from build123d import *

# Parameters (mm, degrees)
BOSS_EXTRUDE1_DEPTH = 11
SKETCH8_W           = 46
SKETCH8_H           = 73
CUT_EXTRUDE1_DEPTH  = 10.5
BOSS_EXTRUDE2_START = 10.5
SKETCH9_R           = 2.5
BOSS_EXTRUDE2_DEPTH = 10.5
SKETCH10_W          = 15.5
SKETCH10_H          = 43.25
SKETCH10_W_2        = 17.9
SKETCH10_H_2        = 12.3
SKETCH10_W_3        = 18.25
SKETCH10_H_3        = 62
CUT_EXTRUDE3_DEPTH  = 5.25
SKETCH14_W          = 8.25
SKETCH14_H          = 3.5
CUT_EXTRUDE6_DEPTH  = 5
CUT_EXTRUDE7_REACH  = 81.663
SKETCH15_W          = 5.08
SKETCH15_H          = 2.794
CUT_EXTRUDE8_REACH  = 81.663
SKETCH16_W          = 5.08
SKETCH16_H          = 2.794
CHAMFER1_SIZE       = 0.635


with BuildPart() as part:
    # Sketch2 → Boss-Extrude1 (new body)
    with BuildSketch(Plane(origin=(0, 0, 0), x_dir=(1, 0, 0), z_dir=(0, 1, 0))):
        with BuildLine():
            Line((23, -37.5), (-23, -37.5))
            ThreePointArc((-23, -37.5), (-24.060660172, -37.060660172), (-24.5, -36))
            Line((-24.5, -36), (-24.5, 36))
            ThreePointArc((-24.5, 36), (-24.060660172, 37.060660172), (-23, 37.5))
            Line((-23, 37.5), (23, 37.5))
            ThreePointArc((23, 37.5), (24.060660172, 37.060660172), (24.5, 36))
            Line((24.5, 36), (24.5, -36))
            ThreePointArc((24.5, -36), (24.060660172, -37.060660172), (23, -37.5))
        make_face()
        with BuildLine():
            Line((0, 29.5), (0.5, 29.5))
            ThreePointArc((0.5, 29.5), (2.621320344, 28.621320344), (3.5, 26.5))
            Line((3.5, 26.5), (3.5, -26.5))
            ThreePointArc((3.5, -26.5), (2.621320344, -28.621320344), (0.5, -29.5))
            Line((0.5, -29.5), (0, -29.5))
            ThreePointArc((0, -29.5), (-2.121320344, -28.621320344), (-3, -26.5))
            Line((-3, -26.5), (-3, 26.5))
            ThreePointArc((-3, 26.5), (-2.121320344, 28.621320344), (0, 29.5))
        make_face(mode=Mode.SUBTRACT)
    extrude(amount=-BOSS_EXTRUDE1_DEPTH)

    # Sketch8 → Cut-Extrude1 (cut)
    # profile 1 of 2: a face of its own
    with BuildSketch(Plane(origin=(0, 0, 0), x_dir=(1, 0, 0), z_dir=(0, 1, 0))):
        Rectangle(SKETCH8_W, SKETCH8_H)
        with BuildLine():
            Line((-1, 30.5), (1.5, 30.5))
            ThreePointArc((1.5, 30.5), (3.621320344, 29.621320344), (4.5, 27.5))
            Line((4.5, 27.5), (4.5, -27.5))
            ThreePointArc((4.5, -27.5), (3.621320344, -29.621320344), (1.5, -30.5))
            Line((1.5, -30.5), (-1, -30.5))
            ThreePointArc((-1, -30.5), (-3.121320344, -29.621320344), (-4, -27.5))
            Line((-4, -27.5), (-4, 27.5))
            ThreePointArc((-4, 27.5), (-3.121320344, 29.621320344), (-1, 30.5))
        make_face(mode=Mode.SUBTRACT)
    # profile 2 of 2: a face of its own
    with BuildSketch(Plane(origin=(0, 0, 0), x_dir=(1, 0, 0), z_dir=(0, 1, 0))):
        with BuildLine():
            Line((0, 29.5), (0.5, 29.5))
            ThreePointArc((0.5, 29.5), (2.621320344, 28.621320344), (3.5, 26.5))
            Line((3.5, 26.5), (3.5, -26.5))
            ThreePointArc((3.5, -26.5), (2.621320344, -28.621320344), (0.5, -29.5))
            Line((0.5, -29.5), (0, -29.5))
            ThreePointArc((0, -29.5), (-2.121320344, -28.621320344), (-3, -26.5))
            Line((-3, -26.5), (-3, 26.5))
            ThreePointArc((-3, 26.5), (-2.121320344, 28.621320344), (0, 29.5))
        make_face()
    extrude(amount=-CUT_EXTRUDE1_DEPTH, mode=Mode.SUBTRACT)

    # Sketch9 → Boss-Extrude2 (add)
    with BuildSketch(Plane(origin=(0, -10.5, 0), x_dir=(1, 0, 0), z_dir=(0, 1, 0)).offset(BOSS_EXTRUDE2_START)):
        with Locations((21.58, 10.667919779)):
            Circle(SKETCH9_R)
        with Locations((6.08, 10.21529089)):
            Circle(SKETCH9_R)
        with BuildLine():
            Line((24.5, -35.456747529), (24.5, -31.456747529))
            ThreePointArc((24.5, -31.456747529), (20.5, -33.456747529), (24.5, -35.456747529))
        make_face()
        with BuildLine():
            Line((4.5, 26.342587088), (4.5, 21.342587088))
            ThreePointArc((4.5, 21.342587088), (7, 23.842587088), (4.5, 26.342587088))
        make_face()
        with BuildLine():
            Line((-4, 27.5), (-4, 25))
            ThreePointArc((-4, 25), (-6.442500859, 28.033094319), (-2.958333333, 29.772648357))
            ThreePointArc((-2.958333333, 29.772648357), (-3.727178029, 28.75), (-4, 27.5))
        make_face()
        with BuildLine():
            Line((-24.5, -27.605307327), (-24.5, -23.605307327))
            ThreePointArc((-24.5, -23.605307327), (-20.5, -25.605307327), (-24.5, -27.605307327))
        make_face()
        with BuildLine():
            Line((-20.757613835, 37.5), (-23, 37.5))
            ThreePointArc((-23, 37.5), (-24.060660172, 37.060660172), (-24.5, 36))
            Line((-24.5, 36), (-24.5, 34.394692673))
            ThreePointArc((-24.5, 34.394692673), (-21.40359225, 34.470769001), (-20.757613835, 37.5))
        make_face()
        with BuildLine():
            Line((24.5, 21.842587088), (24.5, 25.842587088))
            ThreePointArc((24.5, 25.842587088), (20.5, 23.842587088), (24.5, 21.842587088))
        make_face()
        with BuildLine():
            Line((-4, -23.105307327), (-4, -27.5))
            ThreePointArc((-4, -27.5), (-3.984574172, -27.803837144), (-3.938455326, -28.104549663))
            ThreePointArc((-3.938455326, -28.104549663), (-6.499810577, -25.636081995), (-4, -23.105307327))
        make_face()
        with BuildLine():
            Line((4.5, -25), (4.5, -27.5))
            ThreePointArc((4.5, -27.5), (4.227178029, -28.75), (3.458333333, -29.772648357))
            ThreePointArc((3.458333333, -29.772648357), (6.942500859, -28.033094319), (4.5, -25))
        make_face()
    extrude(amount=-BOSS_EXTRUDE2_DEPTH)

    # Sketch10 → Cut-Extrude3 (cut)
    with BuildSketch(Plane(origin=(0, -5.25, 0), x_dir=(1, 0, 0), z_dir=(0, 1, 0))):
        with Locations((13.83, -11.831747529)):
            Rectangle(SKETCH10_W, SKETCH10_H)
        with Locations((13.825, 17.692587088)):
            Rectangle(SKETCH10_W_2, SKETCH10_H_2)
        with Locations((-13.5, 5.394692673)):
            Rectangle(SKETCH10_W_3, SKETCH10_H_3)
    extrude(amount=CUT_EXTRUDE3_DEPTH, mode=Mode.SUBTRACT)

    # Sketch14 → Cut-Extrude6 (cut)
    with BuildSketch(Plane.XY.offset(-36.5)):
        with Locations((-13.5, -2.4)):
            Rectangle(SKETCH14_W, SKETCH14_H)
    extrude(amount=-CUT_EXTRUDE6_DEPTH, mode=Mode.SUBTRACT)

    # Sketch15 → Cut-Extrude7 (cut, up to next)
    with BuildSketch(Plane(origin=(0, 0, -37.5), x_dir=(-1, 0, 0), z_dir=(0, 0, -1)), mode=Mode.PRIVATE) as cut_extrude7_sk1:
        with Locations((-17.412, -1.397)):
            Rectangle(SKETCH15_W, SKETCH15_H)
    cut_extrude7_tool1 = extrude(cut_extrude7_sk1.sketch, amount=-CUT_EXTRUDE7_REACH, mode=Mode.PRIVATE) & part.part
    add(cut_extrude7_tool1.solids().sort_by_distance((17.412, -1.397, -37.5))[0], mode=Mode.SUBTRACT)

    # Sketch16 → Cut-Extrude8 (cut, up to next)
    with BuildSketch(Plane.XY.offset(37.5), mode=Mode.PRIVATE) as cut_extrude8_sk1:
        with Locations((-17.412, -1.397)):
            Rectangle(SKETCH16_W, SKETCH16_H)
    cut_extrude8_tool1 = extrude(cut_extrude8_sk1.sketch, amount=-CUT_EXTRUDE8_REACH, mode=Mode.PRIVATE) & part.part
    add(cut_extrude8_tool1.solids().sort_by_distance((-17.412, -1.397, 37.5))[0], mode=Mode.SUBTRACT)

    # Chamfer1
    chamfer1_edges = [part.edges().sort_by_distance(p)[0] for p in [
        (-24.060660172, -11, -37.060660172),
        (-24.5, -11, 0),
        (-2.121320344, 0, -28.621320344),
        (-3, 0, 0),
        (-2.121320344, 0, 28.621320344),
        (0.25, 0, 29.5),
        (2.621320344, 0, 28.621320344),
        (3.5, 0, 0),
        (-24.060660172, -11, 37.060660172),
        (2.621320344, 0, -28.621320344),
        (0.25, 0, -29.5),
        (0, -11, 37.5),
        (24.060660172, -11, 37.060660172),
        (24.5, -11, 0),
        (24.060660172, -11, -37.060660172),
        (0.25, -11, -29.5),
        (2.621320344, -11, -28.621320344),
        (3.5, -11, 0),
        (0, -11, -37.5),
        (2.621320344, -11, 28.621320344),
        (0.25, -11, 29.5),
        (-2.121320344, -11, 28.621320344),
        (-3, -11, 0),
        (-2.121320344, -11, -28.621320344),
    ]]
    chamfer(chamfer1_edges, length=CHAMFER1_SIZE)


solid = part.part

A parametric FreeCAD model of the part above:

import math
import FreeCAD as App
import Part
import Sketcher
from FreeCAD import Vector


def edges_at(feature, points):
    """Names of the edges that pass closest to the given points."""
    edges = feature.Shape.Edges
    near = lambda p: min(range(len(edges)), key=lambda i: edges[i].distToShape(Part.Vertex(*p))[0])
    return sorted({f"Edge{near(p) + 1}" for p in points})


def add_polygon(sketch, points):
    """Adds a closed chain of lines whose ends are joined by coincident constraints."""
    first, n = sketch.GeometryCount, len(points)
    for a, b in zip(points, points[1:] + points[:1]):
        sketch.addGeometry(Part.LineSegment(App.Vector(*a, 0), App.Vector(*b, 0)), False)
    for i in range(n):
        sketch.addConstraint(Sketcher.Constraint("Coincident", first + i, 2, first + (i + 1) % n, 1))

doc = App.newDocument("Part")
body = doc.addObject("PartDesign::Body", "Body")

sketch1 = doc.addObject("Sketcher::SketchObject", "Sketch")
body.addObject(sketch1)
sketch1.AttachmentSupport = (doc.XZ_Plane, [""])
sketch1.MapMode = "FlatFace"
sketch1.addGeometry(Part.LineSegment(Vector(-23, 37.5, 0), Vector(23, 37.5, 0)), False)
sketch1.addGeometry(Part.ArcOfCircle(Part.Circle(Vector(23, 36, 0), Vector(0, 0, 1), 1.5), math.radians(0), math.radians(90)), False)
sketch1.addGeometry(Part.LineSegment(Vector(24.5, 36, 0), Vector(24.5, -36, 0)), False)
sketch1.addGeometry(Part.ArcOfCircle(Part.Circle(Vector(23, -36, 0), Vector(0, 0, 1), 1.5), math.radians(-90), math.radians(0)), False)
sketch1.addGeometry(Part.LineSegment(Vector(23, -37.5, 0), Vector(-23, -37.5, 0)), False)
sketch1.addGeometry(Part.ArcOfCircle(Part.Circle(Vector(-23, -36, 0), Vector(0, 0, 1), 1.5), math.radians(180), math.radians(270)), False)
sketch1.addGeometry(Part.LineSegment(Vector(-24.5, -36, 0), Vector(-24.5, 36, 0)), False)
sketch1.addGeometry(Part.ArcOfCircle(Part.Circle(Vector(-23, 36, 0), Vector(0, 0, 1), 1.5), math.radians(90), math.radians(180)), False)
sketch1.addGeometry(Part.LineSegment(Vector(0, -29.5, 0), Vector(0.5, -29.5, 0)), False)
sketch1.addGeometry(Part.ArcOfCircle(Part.Circle(Vector(0.5, -26.5, 0), Vector(0, 0, 1), 3), math.radians(-90), math.radians(0)), False)
sketch1.addGeometry(Part.LineSegment(Vector(3.5, -26.5, 0), Vector(3.5, 26.5, 0)), False)
sketch1.addGeometry(Part.ArcOfCircle(Part.Circle(Vector(0.5, 26.5, 0), Vector(0, 0, 1), 3), math.radians(0), math.radians(90)), False)
sketch1.addGeometry(Part.LineSegment(Vector(0.5, 29.5, 0), Vector(0, 29.5, 0)), False)
sketch1.addGeometry(Part.ArcOfCircle(Part.Circle(Vector(0, 26.5, 0), Vector(0, 0, 1), 3), math.radians(90), math.radians(180)), False)
sketch1.addGeometry(Part.LineSegment(Vector(-3, 26.5, 0), Vector(-3, -26.5, 0)), False)
sketch1.addGeometry(Part.ArcOfCircle(Part.Circle(Vector(0, -26.5, 0), Vector(0, 0, 1), 3), math.radians(180), math.radians(270)), False)
sketch1.addConstraint(Sketcher.Constraint("Tangent", 0, 2, 1, 2))
sketch1.addConstraint(Sketcher.Constraint("Tangent", 1, 1, 2, 1))
sketch1.addConstraint(Sketcher.Constraint("Tangent", 2, 2, 3, 2))
sketch1.addConstraint(Sketcher.Constraint("Tangent", 3, 1, 4, 1))
sketch1.addConstraint(Sketcher.Constraint("Tangent", 4, 2, 5, 2))
sketch1.addConstraint(Sketcher.Constraint("Tangent", 5, 1, 6, 1))
sketch1.addConstraint(Sketcher.Constraint("Tangent", 6, 2, 7, 2))
sketch1.addConstraint(Sketcher.Constraint("Tangent", 7, 1, 0, 1))
sketch1.addConstraint(Sketcher.Constraint("Tangent", 8, 2, 9, 1))
sketch1.addConstraint(Sketcher.Constraint("Tangent", 9, 2, 10, 1))
sketch1.addConstraint(Sketcher.Constraint("Tangent", 10, 2, 11, 1))
sketch1.addConstraint(Sketcher.Constraint("Tangent", 11, 2, 12, 1))
sketch1.addConstraint(Sketcher.Constraint("Tangent", 12, 2, 13, 1))
sketch1.addConstraint(Sketcher.Constraint("Tangent", 13, 2, 14, 1))
sketch1.addConstraint(Sketcher.Constraint("Tangent", 14, 2, 15, 1))
sketch1.addConstraint(Sketcher.Constraint("Tangent", 15, 2, 8, 1))
sketch1.addConstraint(Sketcher.Constraint("Horizontal", 0))
sketch1.addConstraint(Sketcher.Constraint("Vertical", 2))
sketch1.addConstraint(Sketcher.Constraint("Horizontal", 4))
sketch1.addConstraint(Sketcher.Constraint("Vertical", 6))
sketch1.addConstraint(Sketcher.Constraint("Horizontal", 8))
sketch1.addConstraint(Sketcher.Constraint("Vertical", 10))
sketch1.addConstraint(Sketcher.Constraint("Horizontal", 12))
sketch1.addConstraint(Sketcher.Constraint("Vertical", 14))
sketch1.addConstraint(Sketcher.Constraint("Equal", 1, 3))
sketch1.addConstraint(Sketcher.Constraint("Equal", 3, 5))
sketch1.addConstraint(Sketcher.Constraint("Equal", 5, 7))
sketch1.addConstraint(Sketcher.Constraint("Equal", 9, 11))
sketch1.addConstraint(Sketcher.Constraint("Equal", 11, 13))
sketch1.addConstraint(Sketcher.Constraint("Equal", 13, 15))
sketch1.addConstraint(Sketcher.Constraint("Symmetric", 1, 3, 5, 3, -1, 1))
sketch1.addConstraint(Sketcher.Constraint("Symmetric", 13, 3, 15, 3, -1, 1))
sketch1.addConstraint(Sketcher.Constraint("Radius", 9, 3.0))
sketch1.addConstraint(Sketcher.Constraint("Radius", 1, 1.5))
sketch1.addConstraint(Sketcher.Constraint("DistanceX", 0, 1, 0, 2, 46.0))
sketch1.addConstraint(Sketcher.Constraint("DistanceY", 2, 2, 2, 1, 72.0))
sketch1.addConstraint(Sketcher.Constraint("DistanceY", 10, 1, 10, 2, 53.0))
sketch1.addConstraint(Sketcher.Constraint("DistanceX", 8, 1, 8, 2, 0.5))
pad1 = doc.addObject("PartDesign::Pad", "Pad")
body.addObject(pad1)
pad1.Profile = sketch1
pad1.Length = 11

sketch2 = doc.addObject("Sketcher::SketchObject", "Sketch001")
body.addObject(sketch2)
sketch2.AttachmentSupport = (doc.XZ_Plane, [""])
sketch2.MapMode = "FlatFace"
add_polygon(sketch2, [(-23, -36.5), (-23, 36.5), (23, 36.5), (23, -36.5)])
sketch2.addGeometry(Part.ArcOfCircle(Part.Circle(Vector(-1, -27.5, 0), Vector(0, 0, 1), 3), math.radians(180), math.radians(270)), False)
sketch2.addGeometry(Part.LineSegment(Vector(-1, -30.5, 0), Vector(1.5, -30.5, 0)), False)
sketch2.addGeometry(Part.ArcOfCircle(Part.Circle(Vector(1.5, -27.5, 0), Vector(0, 0, 1), 3), math.radians(-90), math.radians(0)), False)
sketch2.addGeometry(Part.LineSegment(Vector(4.5, -27.5, 0), Vector(4.5, 27.5, 0)), False)
sketch2.addGeometry(Part.ArcOfCircle(Part.Circle(Vector(1.5, 27.5, 0), Vector(0, 0, 1), 3), math.radians(0), math.radians(90)), False)
sketch2.addGeometry(Part.LineSegment(Vector(1.5, 30.5, 0), Vector(-1, 30.5, 0)), False)
sketch2.addGeometry(Part.ArcOfCircle(Part.Circle(Vector(-1, 27.5, 0), Vector(0, 0, 1), 3), math.radians(90), math.radians(180)), False)
sketch2.addGeometry(Part.LineSegment(Vector(-4, 27.5, 0), Vector(-4, -27.5, 0)), False)
sketch2.addGeometry(Part.LineSegment(Vector(0.5, -29.5, 0), Vector(0, -29.5, 0)), False)
sketch2.addGeometry(Part.ArcOfCircle(Part.Circle(Vector(0, -26.5, 0), Vector(0, 0, 1), 3), math.radians(180), math.radians(270)), False)
sketch2.addGeometry(Part.LineSegment(Vector(-3, -26.5, 0), Vector(-3, 26.5, 0)), False)
sketch2.addGeometry(Part.ArcOfCircle(Part.Circle(Vector(0, 26.5, 0), Vector(0, 0, 1), 3), math.radians(90), math.radians(180)), False)
sketch2.addGeometry(Part.LineSegment(Vector(0, 29.5, 0), Vector(0.5, 29.5, 0)), False)
sketch2.addGeometry(Part.ArcOfCircle(Part.Circle(Vector(0.5, 26.5, 0), Vector(0, 0, 1), 3), math.radians(0), math.radians(90)), False)
sketch2.addGeometry(Part.LineSegment(Vector(3.5, 26.5, 0), Vector(3.5, -26.5, 0)), False)
sketch2.addGeometry(Part.ArcOfCircle(Part.Circle(Vector(0.5, -26.5, 0), Vector(0, 0, 1), 3), math.radians(-90), math.radians(0)), False)
sketch2.addConstraint(Sketcher.Constraint("Tangent", 4, 2, 5, 1))
sketch2.addConstraint(Sketcher.Constraint("Tangent", 5, 2, 6, 1))
sketch2.addConstraint(Sketcher.Constraint("Tangent", 6, 2, 7, 1))
sketch2.addConstraint(Sketcher.Constraint("Tangent", 7, 2, 8, 1))
sketch2.addConstraint(Sketcher.Constraint("Tangent", 8, 2, 9, 1))
sketch2.addConstraint(Sketcher.Constraint("Tangent", 9, 2, 10, 1))
sketch2.addConstraint(Sketcher.Constraint("Tangent", 10, 2, 11, 1))
sketch2.addConstraint(Sketcher.Constraint("Tangent", 11, 2, 4, 1))
sketch2.addConstraint(Sketcher.Constraint("Tangent", 12, 2, 13, 2))
sketch2.addConstraint(Sketcher.Constraint("Tangent", 13, 1, 14, 1))
sketch2.addConstraint(Sketcher.Constraint("Tangent", 14, 2, 15, 2))
sketch2.addConstraint(Sketcher.Constraint("Tangent", 15, 1, 16, 1))
sketch2.addConstraint(Sketcher.Constraint("Tangent", 16, 2, 17, 2))
sketch2.addConstraint(Sketcher.Constraint("Tangent", 17, 1, 18, 1))
sketch2.addConstraint(Sketcher.Constraint("Tangent", 18, 2, 19, 2))
sketch2.addConstraint(Sketcher.Constraint("Tangent", 19, 1, 12, 1))
sketch2.addConstraint(Sketcher.Constraint("Vertical", 0))
sketch2.addConstraint(Sketcher.Constraint("Horizontal", 1))
sketch2.addConstraint(Sketcher.Constraint("Vertical", 2))
sketch2.addConstraint(Sketcher.Constraint("Horizontal", 3))
sketch2.addConstraint(Sketcher.Constraint("Horizontal", 5))
sketch2.addConstraint(Sketcher.Constraint("Vertical", 7))
sketch2.addConstraint(Sketcher.Constraint("Horizontal", 9))
sketch2.addConstraint(Sketcher.Constraint("Vertical", 11))
sketch2.addConstraint(Sketcher.Constraint("Horizontal", 12))
sketch2.addConstraint(Sketcher.Constraint("Vertical", 14))
sketch2.addConstraint(Sketcher.Constraint("Horizontal", 16))
sketch2.addConstraint(Sketcher.Constraint("Vertical", 18))
sketch2.addConstraint(Sketcher.Constraint("Equal", 4, 6))
sketch2.addConstraint(Sketcher.Constraint("Equal", 6, 8))
sketch2.addConstraint(Sketcher.Constraint("Equal", 8, 10))
sketch2.addConstraint(Sketcher.Constraint("Equal", 10, 13))
sketch2.addConstraint(Sketcher.Constraint("Equal", 13, 15))
sketch2.addConstraint(Sketcher.Constraint("Equal", 15, 17))
sketch2.addConstraint(Sketcher.Constraint("Equal", 17, 19))
sketch2.addConstraint(Sketcher.Constraint("Symmetric", 13, 3, 15, 3, -1, 1))
sketch2.addConstraint(Sketcher.Constraint("Symmetric", 0, 2, 2, 2, -1, 1))
sketch2.addConstraint(Sketcher.Constraint("Radius", 4, 3.0))
sketch2.addConstraint(Sketcher.Constraint("DistanceX", 1, 1, 1, 2, 46.0))
sketch2.addConstraint(Sketcher.Constraint("DistanceY", 0, 1, 0, 2, 73.0))
sketch2.addConstraint(Sketcher.Constraint("DistanceY", 7, 1, 7, 2, 55.0))
sketch2.addConstraint(Sketcher.Constraint("DistanceY", 14, 1, 14, 2, 53.0))
sketch2.addConstraint(Sketcher.Constraint("DistanceX", 5, 1, 5, 2, 2.5))
sketch2.addConstraint(Sketcher.Constraint("DistanceX", 12, 2, 12, 1, 0.5))
sketch2.addConstraint(Sketcher.Constraint("DistanceX", 4, 3, -1, 1, 1.0))
sketch2.addConstraint(Sketcher.Constraint("DistanceY", 4, 3, 13, 3, 1.0))
pocket1 = doc.addObject("PartDesign::Pocket", "Pocket")
body.addObject(pocket1)
pocket1.Profile = sketch2
pocket1.Length = 10.5
pocket1.Reversed = True

sketch3 = doc.addObject("Sketcher::SketchObject", "Sketch002")
body.addObject(sketch3)
sketch3.AttachmentSupport = (doc.XZ_Plane, [""])
sketch3.MapMode = "FlatFace"
sketch3.addGeometry(Part.Circle(Vector(21.58, -10.66792, 0), Vector(0, 0, 1), 2.5), False)
sketch3.addGeometry(Part.Circle(Vector(6.08, -10.215291, 0), Vector(0, 0, 1), 2.5), False)
sketch3.addGeometry(Part.LineSegment(Vector(24.5, 35.456748, 0), Vector(24.5, 31.456748, 0)), False)
sketch3.addGeometry(Part.ArcOfCircle(Part.Circle(Vector(23, 33.456748, 0), Vector(0, 0, 1), 2.5), math.radians(53.130102), math.radians(306.869898)), False)
sketch3.addGeometry(Part.LineSegment(Vector(4.5, -26.342587, 0), Vector(4.5, -21.342587, 0)), False)
sketch3.addGeometry(Part.ArcOfCircle(Part.Circle(Vector(4.5, -23.842587, 0), Vector(0, 0, 1), 2.5), math.radians(-90), math.radians(90)), False)
sketch3.addGeometry(Part.LineSegment(Vector(-4, -25, 0), Vector(-4, -27.5, 0)), False)
sketch3.addGeometry(Part.ArcOfCircle(Part.Circle(Vector(-1, -27.5, 0), Vector(0, 0, 1), 3), math.radians(180), math.radians(229.248637)), False)
sketch3.addGeometry(Part.ArcOfCircle(Part.Circle(Vector(-4, -27.5, 0), Vector(0, 0, 1), 2.5), math.radians(90), math.radians(294.624318)), False)
sketch3.addGeometry(Part.LineSegment(Vector(-24.5, 23.605307, 0), Vector(-24.5, 27.605307, 0)), False)
sketch3.addGeometry(Part.ArcOfCircle(Part.Circle(Vector(-23, 25.605307, 0), Vector(0, 0, 1), 2.5), math.radians(-126.869898), math.radians(126.869898)), False)
sketch3.addGeometry(Part.LineSegment(Vector(-20.757614, -37.5, 0), Vector(-23, -37.5, 0)), False)
sketch3.addGeometry(Part.ArcOfCircle(Part.Circle(Vector(-23, -36, 0), Vector(0, 0, 1), 1.5), math.radians(180), math.radians(270)), False)
sketch3.addGeometry(Part.LineSegment(Vector(-24.5, -36, 0), Vector(-24.5, -34.394693, 0)), False)
sketch3.addGeometry(Part.ArcOfCircle(Part.Circle(Vector(-23, -36.394693, 0), Vector(0, 0, 1), 2.5), math.radians(-26.239411), math.radians(126.869898)), False)
sketch3.addGeometry(Part.LineSegment(Vector(24.5, -21.842587, 0), Vector(24.5, -25.842587, 0)), False)
sketch3.addGeometry(Part.ArcOfCircle(Part.Circle(Vector(23, -23.842587, 0), Vector(0, 0, 1), 2.5), math.radians(53.130102), math.radians(306.869898)), False)
sketch3.addGeometry(Part.LineSegment(Vector(-4, 27.5, 0), Vector(-4, 23.105307, 0)), False)
sketch3.addGeometry(Part.ArcOfCircle(Part.Circle(Vector(-4, 25.605307, 0), Vector(0, 0, 1), 2.5), math.radians(88.589357), math.radians(270)), False)
sketch3.addGeometry(Part.ArcOfCircle(Part.Circle(Vector(-1, 27.5, 0), Vector(0, 0, 1), 3), math.radians(168.374343), math.radians(180)), False)
sketch3.addGeometry(Part.LineSegment(Vector(4.5, 25, 0), Vector(4.5, 27.5, 0)), False)
sketch3.addGeometry(Part.ArcOfCircle(Part.Circle(Vector(1.5, 27.5, 0), Vector(0, 0, 1), 3), math.radians(0), math.radians(49.248637)), False)
sketch3.addGeometry(Part.ArcOfCircle(Part.Circle(Vector(4.5, 27.5, 0), Vector(0, 0, 1), 2.5), math.radians(-90), math.radians(114.624318)), False)
sketch3.addConstraint(Sketcher.Constraint("Coincident", 2, 1, 3, 1))
sketch3.addConstraint(Sketcher.Constraint("Coincident", 3, 2, 2, 2))
sketch3.addConstraint(Sketcher.Constraint("Coincident", 4, 1, 5, 1))
sketch3.addConstraint(Sketcher.Constraint("Coincident", 5, 2, 4, 2))
sketch3.addConstraint(Sketcher.Constraint("Tangent", 6, 2, 7, 1))
sketch3.addConstraint(Sketcher.Constraint("Coincident", 7, 2, 8, 2))
sketch3.addConstraint(Sketcher.Constraint("Coincident", 8, 1, 6, 1))
sketch3.addConstraint(Sketcher.Constraint("Coincident", 9, 1, 10, 1))
sketch3.addConstraint(Sketcher.Constraint("Coincident", 10, 2, 9, 2))
sketch3.addConstraint(Sketcher.Constraint("Tangent", 11, 2, 12, 2))
sketch3.addConstraint(Sketcher.Constraint("Tangent", 12, 1, 13, 1))
sketch3.addConstraint(Sketcher.Constraint("Coincident", 13, 2, 14, 2))
sketch3.addConstraint(Sketcher.Constraint("Coincident", 14, 1, 11, 1))
sketch3.addConstraint(Sketcher.Constraint("Coincident", 15, 1, 16, 1))
sketch3.addConstraint(Sketcher.Constraint("Coincident", 16, 2, 15, 2))
sketch3.addConstraint(Sketcher.Constraint("Coincident", 17, 2, 18, 2))
sketch3.addConstraint(Sketcher.Constraint("Coincident", 18, 1, 19, 1))
sketch3.addConstraint(Sketcher.Constraint("Tangent", 19, 2, 17, 1))
sketch3.addConstraint(Sketcher.Constraint("Tangent", 20, 2, 21, 1))
sketch3.addConstraint(Sketcher.Constraint("Coincident", 21, 2, 22, 2))
sketch3.addConstraint(Sketcher.Constraint("Coincident", 22, 1, 20, 1))
sketch3.addConstraint(Sketcher.Constraint("Vertical", 2))
sketch3.addConstraint(Sketcher.Constraint("Vertical", 4))
sketch3.addConstraint(Sketcher.Constraint("Vertical", 6))
sketch3.addConstraint(Sketcher.Constraint("Vertical", 9))
sketch3.addConstraint(Sketcher.Constraint("Horizontal", 11))
sketch3.addConstraint(Sketcher.Constraint("Vertical", 13))
sketch3.addConstraint(Sketcher.Constraint("Vertical", 15))
sketch3.addConstraint(Sketcher.Constraint("Vertical", 17))
sketch3.addConstraint(Sketcher.Constraint("Vertical", 20))
sketch3.addConstraint(Sketcher.Constraint("Coincident", 6, 2, 8, 3))
sketch3.addConstraint(Sketcher.Constraint("Coincident", 20, 2, 22, 3))
sketch3.addConstraint(Sketcher.Constraint("Equal", 0, 1))
sketch3.addConstraint(Sketcher.Constraint("Equal", 1, 3))
sketch3.addConstraint(Sketcher.Constraint("Equal", 3, 5))
sketch3.addConstraint(Sketcher.Constraint("Equal", 5, 8))
sketch3.addConstraint(Sketcher.Constraint("Equal", 8, 10))
sketch3.addConstraint(Sketcher.Constraint("Equal", 10, 14))
sketch3.addConstraint(Sketcher.Constraint("Equal", 14, 16))
sketch3.addConstraint(Sketcher.Constraint("Equal", 16, 18))
sketch3.addConstraint(Sketcher.Constraint("Equal", 7, 19))
sketch3.addConstraint(Sketcher.Constraint("Equal", 19, 21))
sketch3.addConstraint(Sketcher.Constraint("Equal", 18, 22))
sketch3.addConstraint(Sketcher.Constraint("Symmetric", 7, 3, 19, 3, -1))
sketch3.addConstraint(Sketcher.Constraint("Horizontal", 5, 3, 16, 3))
sketch3.addConstraint(Sketcher.Constraint("Horizontal", 10, 3, 18, 3))
sketch3.addConstraint(Sketcher.Constraint("Horizontal", 19, 3, 21, 3))
sketch3.addConstraint(Sketcher.Constraint("Vertical", 10, 3, 12, 3))
sketch3.addConstraint(Sketcher.Constraint("Vertical", 12, 3, 14, 3))
sketch3.addConstraint(Sketcher.Constraint("Vertical", 3, 3, 16, 3))
sketch3.addConstraint(Sketcher.Constraint("Vertical", 8, 3, 18, 3))
sketch3.addConstraint(Sketcher.Constraint("Vertical", 5, 3, 22, 3))
sketch3.addConstraint(Sketcher.Constraint("Vertical", 22, 3, 4, 1))
sketch3.addConstraint(Sketcher.Constraint("Vertical", 10, 2, 12, 1))
sketch3.addConstraint(Sketcher.Constraint("Vertical", 3, 2, 15, 1))
sketch3.addConstraint(Sketcher.Constraint("Equal", 2, 9))
sketch3.addConstraint(Sketcher.Constraint("Diameter", 0, 5.0))
sketch3.addConstraint(Sketcher.Constraint("Radius", 7, 3.0))
sketch3.addConstraint(Sketcher.Constraint("Radius", 12, 1.5))
sketch3.addConstraint(Sketcher.Constraint("DistanceX", -1, 1, 3, 3, 23.0))
sketch3.addConstraint(Sketcher.Constraint("DistanceX", 7, 3, -1, 1, 1.0))
sketch3.addConstraint(Sketcher.Constraint("DistanceX", 10, 3, -1, 1, 23.0))
sketch3.addConstraint(Sketcher.Constraint("DistanceY", 12, 3, -1, 1, 36.0))
sketch3.addConstraint(Sketcher.Constraint("DistanceY", 8, 1, -1, 1, 25.0))
sketch3.addConstraint(Sketcher.Constraint("DistanceX", 22, 3, 2, 1, 20.0))
sketch3.addConstraint(Sketcher.Constraint("DistanceX", 1, 3, 0, 3, 15.5))
sketch3.addConstraint(Sketcher.Constraint("DistanceX", -1, 1, 0, 3, 21.58))
sketch3.addConstraint(Sketcher.Constraint("DistanceY", 1, 3, 10, 3, 35.820598))
sketch3.addConstraint(Sketcher.Constraint("DistanceY", 14, 3, 1, 3, 26.179402))
sketch3.addConstraint(Sketcher.Constraint("DistanceY", 18, 1, 21, 2, 1.668099))
sketch3.addConstraint(Sketcher.Constraint("DistanceY", 0, 3, -1, 1, 10.66792))
sketch3.addConstraint(Sketcher.Constraint("DistanceY", 1, 3, 3, 3, 43.672038))
sketch3.addConstraint(Sketcher.Constraint("DistanceY", 7, 2, 4, 1, 3.430061))
pad2 = doc.addObject("PartDesign::Pad", "Pad001")
body.addObject(pad2)
pad2.Profile = sketch3
pad2.Length = 10.5

sketch4 = doc.addObject("Sketcher::SketchObject", "Sketch003")
body.addObject(sketch4)
sketch4.AttachmentSupport = (doc.XZ_Plane, [""])
sketch4.MapMode = "FlatFace"
sketch4.AttachmentOffset = App.Placement(Vector(0, 0, 5.25), App.Rotation())
add_polygon(sketch4, [(6.08, -9.793252), (6.08, 33.456748), (21.58, 33.456748), (21.58, -9.793252)])
add_polygon(sketch4, [(4.875, -23.842587), (4.875, -11.542587), (22.775, -11.542587), (22.775, -23.842587)])
add_polygon(sketch4, [(-22.625, -36.394693), (-22.625, 25.605307), (-4.375, 25.605307), (-4.375, -36.394693)])
sketch4.addConstraint(Sketcher.Constraint("Vertical", 0))
sketch4.addConstraint(Sketcher.Constraint("Horizontal", 1))
sketch4.addConstraint(Sketcher.Constraint("Vertical", 2))
sketch4.addConstraint(Sketcher.Constraint("Horizontal", 3))
sketch4.addConstraint(Sketcher.Constraint("Vertical", 4))
sketch4.addConstraint(Sketcher.Constraint("Horizontal", 5))
sketch4.addConstraint(Sketcher.Constraint("Vertical", 6))
sketch4.addConstraint(Sketcher.Constraint("Horizontal", 7))
sketch4.addConstraint(Sketcher.Constraint("Vertical", 8))
sketch4.addConstraint(Sketcher.Constraint("Horizontal", 9))
sketch4.addConstraint(Sketcher.Constraint("Vertical", 10))
sketch4.addConstraint(Sketcher.Constraint("Horizontal", 11))
sketch4.addConstraint(Sketcher.Constraint("DistanceY", 8, 1, 8, 2, 62.0))
sketch4.addConstraint(Sketcher.Constraint("DistanceX", 1, 1, 1, 2, 15.5))
sketch4.addConstraint(Sketcher.Constraint("DistanceX", 5, 1, 5, 2, 17.9))
sketch4.addConstraint(Sketcher.Constraint("DistanceY", 4, 1, 4, 2, 12.3))
sketch4.addConstraint(Sketcher.Constraint("DistanceX", 9, 1, 9, 2, 18.25))
sketch4.addConstraint(Sketcher.Constraint("DistanceY", 0, 1, 0, 2, 43.25))
sketch4.addConstraint(Sketcher.Constraint("DistanceX", 8, 2, 4, 2, 27.5))
sketch4.addConstraint(Sketcher.Constraint("DistanceX", -1, 1, 0, 2, 6.08))
sketch4.addConstraint(Sketcher.Constraint("DistanceX", -1, 1, 4, 2, 4.875))
sketch4.addConstraint(Sketcher.Constraint("DistanceY", 8, 2, 0, 2, 7.85144))
sketch4.addConstraint(Sketcher.Constraint("DistanceY", -1, 1, 0, 2, 33.456748))
sketch4.addConstraint(Sketcher.Constraint("DistanceY", 4, 2, -1, 1, 11.542587))
pocket2 = doc.addObject("PartDesign::Pocket", "Pocket001")
body.addObject(pocket2)
pocket2.Profile = sketch4
pocket2.Length = 5.25

sketch5 = doc.addObject("Sketcher::SketchObject", "Sketch004")
body.addObject(sketch5)
sketch5.AttachmentSupport = (doc.XY_Plane, [""])
sketch5.MapMode = "FlatFace"
sketch5.AttachmentOffset = App.Placement(Vector(0, 0, -36.5), App.Rotation())
add_polygon(sketch5, [(-17.625, -0.65), (-17.625, -4.15), (-9.375, -4.15), (-9.375, -0.65)])
sketch5.addConstraint(Sketcher.Constraint("Vertical", 0))
sketch5.addConstraint(Sketcher.Constraint("Horizontal", 1))
sketch5.addConstraint(Sketcher.Constraint("Vertical", 2))
sketch5.addConstraint(Sketcher.Constraint("Horizontal", 3))
sketch5.addConstraint(Sketcher.Constraint("DistanceY", 0, 2, 0, 1, 3.5))
sketch5.addConstraint(Sketcher.Constraint("DistanceX", 1, 1, 1, 2, 8.25))
sketch5.addConstraint(Sketcher.Constraint("DistanceY", 0, 2, -1, 1, 4.15))
sketch5.addConstraint(Sketcher.Constraint("DistanceX", 0, 2, -1, 1, 17.625))
pocket3 = doc.addObject("PartDesign::Pocket", "Pocket002")
body.addObject(pocket3)
pocket3.Profile = sketch5
pocket3.Length = 5

sketch6 = doc.addObject("Sketcher::SketchObject", "Sketch005")
body.addObject(sketch6)
sketch6.AttachmentSupport = (doc.XY_Plane, [""])
sketch6.MapMode = "FlatFace"
sketch6.AttachmentOffset = App.Placement(Vector(0, 0, -37.5), App.Rotation())
add_polygon(sketch6, [(19.952, 0), (19.952, -2.794), (14.872, -2.794), (14.872, 0)])
sketch6.addConstraint(Sketcher.Constraint("Vertical", 0))
sketch6.addConstraint(Sketcher.Constraint("Horizontal", 1))
sketch6.addConstraint(Sketcher.Constraint("Vertical", 2))
sketch6.addConstraint(Sketcher.Constraint("Horizontal", 3))
sketch6.addConstraint(Sketcher.Constraint("PointOnObject", 2, 2, -1))
sketch6.addConstraint(Sketcher.Constraint("DistanceX", 1, 2, 1, 1, 5.08))
sketch6.addConstraint(Sketcher.Constraint("DistanceY", 0, 2, 0, 1, 2.794))
sketch6.addConstraint(Sketcher.Constraint("DistanceX", -1, 1, 0, 2, 19.952))
pocket4 = doc.addObject("PartDesign::Pocket", "Pocket003")
body.addObject(pocket4)
pocket4.Profile = sketch6
pocket4.Type = "UpToFirst"
pocket4.Reversed = True

sketch7 = doc.addObject("Sketcher::SketchObject", "Sketch006")
body.addObject(sketch7)
sketch7.AttachmentSupport = (doc.XY_Plane, [""])
sketch7.MapMode = "FlatFace"
sketch7.AttachmentOffset = App.Placement(Vector(0, 0, 37.5), App.Rotation())
add_polygon(sketch7, [(-19.952, 0), (-19.952, -2.794), (-14.872, -2.794), (-14.872, 0)])
sketch7.addConstraint(Sketcher.Constraint("Vertical", 0))
sketch7.addConstraint(Sketcher.Constraint("Horizontal", 1))
sketch7.addConstraint(Sketcher.Constraint("Vertical", 2))
sketch7.addConstraint(Sketcher.Constraint("Horizontal", 3))
sketch7.addConstraint(Sketcher.Constraint("PointOnObject", 2, 2, -1))
sketch7.addConstraint(Sketcher.Constraint("DistanceX", 1, 1, 1, 2, 5.08))
sketch7.addConstraint(Sketcher.Constraint("DistanceY", 0, 2, 0, 1, 2.794))
sketch7.addConstraint(Sketcher.Constraint("DistanceX", 0, 2, -1, 1, 19.952))
pocket5 = doc.addObject("PartDesign::Pocket", "Pocket004")
body.addObject(pocket5)
pocket5.Profile = sketch7
pocket5.Type = "UpToFirst"
doc.recompute()

chamfer = doc.addObject("PartDesign::Chamfer", "Chamfer")
body.addObject(chamfer)
chamfer.Base = (pocket5, edges_at(pocket5, [
    (-24.061, -11, -37.061),
    (-24.5, -11, 0),
    (-2.121, 0, -28.621),
    (-3, 0, 0),
    (-2.121, 0, 28.621),
    (0.25, 0, 29.5),
    (2.621, 0, 28.621),
    (3.5, 0, 0),
    (-24.061, -11, 37.061),
    (2.621, 0, -28.621),
    (0.25, 0, -29.5),
    (0, -11, 37.5),
    (24.061, -11, 37.061),
    (24.5, -11, 0),
    (24.061, -11, -37.061),
    (0.25, -11, -29.5),
    (2.621, -11, -28.621),
    (3.5, -11, 0),
    (0, -11, -37.5),
    (2.621, -11, 28.621),
    (0.25, -11, 29.5),
    (-2.121, -11, 28.621),
    (-3, -11, 0),
    (-2.121, -11, -28.621),
]))
chamfer.Size = 0.635

doc.recompute()
